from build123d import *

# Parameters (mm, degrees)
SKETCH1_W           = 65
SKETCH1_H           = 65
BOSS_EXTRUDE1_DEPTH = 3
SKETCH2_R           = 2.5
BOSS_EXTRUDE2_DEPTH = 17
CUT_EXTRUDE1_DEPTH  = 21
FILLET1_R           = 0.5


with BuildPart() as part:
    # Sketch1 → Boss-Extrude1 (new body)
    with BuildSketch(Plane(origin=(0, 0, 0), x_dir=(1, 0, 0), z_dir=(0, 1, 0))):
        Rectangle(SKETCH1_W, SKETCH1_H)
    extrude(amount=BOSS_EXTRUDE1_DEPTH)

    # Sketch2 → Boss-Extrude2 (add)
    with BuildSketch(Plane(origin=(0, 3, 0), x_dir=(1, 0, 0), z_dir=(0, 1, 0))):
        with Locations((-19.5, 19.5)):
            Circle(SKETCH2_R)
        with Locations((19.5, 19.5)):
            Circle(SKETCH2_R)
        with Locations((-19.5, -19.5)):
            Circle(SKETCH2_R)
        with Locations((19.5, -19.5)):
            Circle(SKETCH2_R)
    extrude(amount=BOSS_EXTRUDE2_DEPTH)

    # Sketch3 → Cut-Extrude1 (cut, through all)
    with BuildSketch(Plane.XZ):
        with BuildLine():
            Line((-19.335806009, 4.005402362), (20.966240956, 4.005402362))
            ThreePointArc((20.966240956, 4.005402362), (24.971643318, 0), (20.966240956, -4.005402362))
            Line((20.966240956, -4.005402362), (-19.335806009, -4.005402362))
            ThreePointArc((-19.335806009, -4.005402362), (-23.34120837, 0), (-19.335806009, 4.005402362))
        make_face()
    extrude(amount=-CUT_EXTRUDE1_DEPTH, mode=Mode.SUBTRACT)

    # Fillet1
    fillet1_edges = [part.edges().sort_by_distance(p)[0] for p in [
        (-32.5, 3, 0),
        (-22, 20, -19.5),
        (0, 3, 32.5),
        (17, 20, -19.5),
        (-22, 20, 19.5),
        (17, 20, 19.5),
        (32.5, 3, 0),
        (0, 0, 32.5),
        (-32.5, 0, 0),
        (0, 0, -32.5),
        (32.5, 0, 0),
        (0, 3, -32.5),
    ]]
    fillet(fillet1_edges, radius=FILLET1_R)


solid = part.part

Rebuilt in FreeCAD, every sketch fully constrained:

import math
import FreeCAD as App
import Part
import Sketcher
Q = App.Units.Quantity


def edges_at(feature, points):
    """Names of the edges that pass closest to the given points."""
    edges = feature.Shape.Edges
    near = lambda p: min(range(len(edges)), key=lambda i: edges[i].distToShape(Part.Vertex(*p))[0])
    return sorted({f"Edge{near(p) + 1}" for p in points})

doc = App.newDocument("Part")
params = doc.addObject("Spreadsheet::Sheet", "Params")
for row, (alias, value) in enumerate([
    ("sketch1_width", "65 mm"),
    ("pad1_length", "3 mm"),
    ("sketch2_diameter", "5 mm"),
    ("pad2_length", "17 mm"),
    ("fillet_radius", "0.5 mm"),
], start=1):
    params.set(f"A{row}", alias)
    params.set(f"B{row}", "=" + value)
    params.setAlias(f"B{row}", alias)

body = doc.addObject("PartDesign::Body", "Body")

sketch1 = doc.addObject("Sketcher::SketchObject", "Sketch")
body.addObject(sketch1)
sketch1.AttachmentSupport = (doc.XZ_Plane, [""])
sketch1.MapMode = "FlatFace"
sketch1.addGeometry([
    Part.LineSegment(App.Vector(-32, -32, 0), App.Vector(-32, 32, 0)),
    Part.LineSegment(App.Vector(-32, 32, 0), App.Vector(32, 32, 0)),
    Part.LineSegment(App.Vector(32, 32, 0), App.Vector(32, -32, 0)),
    Part.LineSegment(App.Vector(32, -32, 0), App.Vector(-32, -32, 0)),
], False)
sketch1.addConstraint([
    Sketcher.Constraint("Coincident", 0, 2, 1, 1),
    Sketcher.Constraint("Coincident", 1, 2, 2, 1),
    Sketcher.Constraint("Coincident", 2, 2, 3, 1),
    Sketcher.Constraint("Coincident", 3, 2, 0, 1),
    Sketcher.Constraint("Vertical", 0),
    Sketcher.Constraint("Horizontal", 1),
    Sketcher.Constraint("Vertical", 2),
    Sketcher.Constraint("Horizontal", 3),
    Sketcher.Constraint("Symmetric", 0, 2, 2, 2, -1, 1),
    Sketcher.Constraint("Equal", 3, 0),
    Sketcher.Constraint("DistanceX", 1, 1, 1, 2, Q("65 mm")),
])
sketch1.setExpression("Constraints[10]", "Params.sketch1_width")
pad1 = doc.addObject("PartDesign::Pad", "Pad")
body.addObject(pad1)
pad1.Profile = sketch1
pad1.setExpression("Length", "Params.pad1_length")
pad1.Reversed = True

sketch2 = doc.addObject("Sketcher::SketchObject", "Sketch001")
body.addObject(sketch2)
sketch2.AttachmentSupport = (doc.XZ_Plane, [""])
sketch2.MapMode = "FlatFace"
sketch2.AttachmentOffset = App.Placement(App.Vector(0, 0, -3), App.Rotation())
sketch2.addGeometry([
    Part.Circle(App.Vector(-19.5, -19.5, 0), App.Vector(0, 0, 1), 2.5),
    Part.Circle(App.Vector(19.5, -19.5, 0), App.Vector(0, 0, 1), 2.5),
    Part.Circle(App.Vector(-19.5, 19.5, 0), App.Vector(0, 0, 1), 2.5),
    Part.Circle(App.Vector(19.5, 19.5, 0), App.Vector(0, 0, 1), 2.5),
], False)
sketch2.addConstraint([
    Sketcher.Constraint("Equal", 0, 1),
    Sketcher.Constraint("Equal", 1, 2),
    Sketcher.Constraint("Equal", 2, 3),
    Sketcher.Constraint("Symmetric", 1, 3, 2, 3, -1, 1),
    Sketcher.Constraint("Symmetric", 0, 3, 3, 3, -1, 1),
    Sketcher.Constraint("Symmetric", 0, 3, 1, 3, -2),
    Sketcher.Constraint("Diameter", 0, Q("5 mm")),
    Sketcher.Constraint("DistanceX", 0, 3, 1, 3, Q("39 mm")),
    Sketcher.Constraint("DistanceY", 0, 3, 2, 3, Q("39 mm")),
])
sketch2.setExpression("Constraints[6]", "Params.sketch2_diameter")
pad2 = doc.addObject("PartDesign::Pad", "Pad001")
body.addObject(pad2)
pad2.Profile = sketch2
pad2.setExpression("Length", "Params.pad2_length")
pad2.Reversed = True

sketch3 = doc.addObject("Sketcher::SketchObject", "Sketch002")
body.addObject(sketch3)
sketch3.AttachmentSupport = (doc.XZ_Plane, [""])
sketch3.MapMode = "FlatFace"
sketch3.addGeometry([
    Part.LineSegment(App.Vector(21, 4, 0), App.Vector(-19.3, 4, 0)),
    Part.ArcOfCircle(Part.Circle(App.Vector(-19.3, 0, 0), App.Vector(0, 0, 1), 4), math.radians(90), math.radians(270)),
    Part.LineSegment(App.Vector(-19.3, -4, 0), App.Vector(21, -4, 0)),
    Part.ArcOfCircle(Part.Circle(App.Vector(21, 0, 0), App.Vector(0, 0, 1), 4), math.radians(-90), math.radians(90)),
], False)
sketch3.addConstraint([
    Sketcher.Constraint("Tangent", 0, 2, 1, 1),
    Sketcher.Constraint("Tangent", 1, 2, 2, 1),
    Sketcher.Constraint("Tangent", 2, 2, 3, 1),
    Sketcher.Constraint("Tangent", 3, 2, 0, 1),
    Sketcher.Constraint("Horizontal", 0),
    Sketcher.Constraint("Horizontal", 2),
    Sketcher.Constraint("PointOnObject", 1, 3, -1),
    Sketcher.Constraint("Radius", 1, Q("4.005402 mm")),
    Sketcher.Constraint("DistanceX", 0, 2, 0, 1, Q("40.302047 mm")),
    Sketcher.Constraint("DistanceX", -1, 1, 3, 3, Q("20.966241 mm")),
])
pocket1 = doc.addObject("PartDesign::Pocket", "Pocket")
body.addObject(pocket1)
pocket1.Profile = sketch3
pocket1.Type = "ThroughAll"
doc.recompute()

fillet = doc.addObject("PartDesign::Fillet", "Fillet")
body.addObject(fillet)
fillet.Base = (pocket1, edges_at(pocket1, [
    (-32.5, 3, 0),
    (-22, 20, -19.5),
    (0, 3, 32.5),
    (17, 20, -19.5),
    (-22, 20, 19.5),
    (17, 20, 19.5),
    (32.5, 3, 0),
    (0, 0, 32.5),
    (-32.5, 0, 0),
    (0, 0, -32.5),
    (32.5, 0, 0),
    (0, 3, -32.5),
]))
fillet.setExpression("Radius", "Params.fillet_radius")

doc.recompute()
